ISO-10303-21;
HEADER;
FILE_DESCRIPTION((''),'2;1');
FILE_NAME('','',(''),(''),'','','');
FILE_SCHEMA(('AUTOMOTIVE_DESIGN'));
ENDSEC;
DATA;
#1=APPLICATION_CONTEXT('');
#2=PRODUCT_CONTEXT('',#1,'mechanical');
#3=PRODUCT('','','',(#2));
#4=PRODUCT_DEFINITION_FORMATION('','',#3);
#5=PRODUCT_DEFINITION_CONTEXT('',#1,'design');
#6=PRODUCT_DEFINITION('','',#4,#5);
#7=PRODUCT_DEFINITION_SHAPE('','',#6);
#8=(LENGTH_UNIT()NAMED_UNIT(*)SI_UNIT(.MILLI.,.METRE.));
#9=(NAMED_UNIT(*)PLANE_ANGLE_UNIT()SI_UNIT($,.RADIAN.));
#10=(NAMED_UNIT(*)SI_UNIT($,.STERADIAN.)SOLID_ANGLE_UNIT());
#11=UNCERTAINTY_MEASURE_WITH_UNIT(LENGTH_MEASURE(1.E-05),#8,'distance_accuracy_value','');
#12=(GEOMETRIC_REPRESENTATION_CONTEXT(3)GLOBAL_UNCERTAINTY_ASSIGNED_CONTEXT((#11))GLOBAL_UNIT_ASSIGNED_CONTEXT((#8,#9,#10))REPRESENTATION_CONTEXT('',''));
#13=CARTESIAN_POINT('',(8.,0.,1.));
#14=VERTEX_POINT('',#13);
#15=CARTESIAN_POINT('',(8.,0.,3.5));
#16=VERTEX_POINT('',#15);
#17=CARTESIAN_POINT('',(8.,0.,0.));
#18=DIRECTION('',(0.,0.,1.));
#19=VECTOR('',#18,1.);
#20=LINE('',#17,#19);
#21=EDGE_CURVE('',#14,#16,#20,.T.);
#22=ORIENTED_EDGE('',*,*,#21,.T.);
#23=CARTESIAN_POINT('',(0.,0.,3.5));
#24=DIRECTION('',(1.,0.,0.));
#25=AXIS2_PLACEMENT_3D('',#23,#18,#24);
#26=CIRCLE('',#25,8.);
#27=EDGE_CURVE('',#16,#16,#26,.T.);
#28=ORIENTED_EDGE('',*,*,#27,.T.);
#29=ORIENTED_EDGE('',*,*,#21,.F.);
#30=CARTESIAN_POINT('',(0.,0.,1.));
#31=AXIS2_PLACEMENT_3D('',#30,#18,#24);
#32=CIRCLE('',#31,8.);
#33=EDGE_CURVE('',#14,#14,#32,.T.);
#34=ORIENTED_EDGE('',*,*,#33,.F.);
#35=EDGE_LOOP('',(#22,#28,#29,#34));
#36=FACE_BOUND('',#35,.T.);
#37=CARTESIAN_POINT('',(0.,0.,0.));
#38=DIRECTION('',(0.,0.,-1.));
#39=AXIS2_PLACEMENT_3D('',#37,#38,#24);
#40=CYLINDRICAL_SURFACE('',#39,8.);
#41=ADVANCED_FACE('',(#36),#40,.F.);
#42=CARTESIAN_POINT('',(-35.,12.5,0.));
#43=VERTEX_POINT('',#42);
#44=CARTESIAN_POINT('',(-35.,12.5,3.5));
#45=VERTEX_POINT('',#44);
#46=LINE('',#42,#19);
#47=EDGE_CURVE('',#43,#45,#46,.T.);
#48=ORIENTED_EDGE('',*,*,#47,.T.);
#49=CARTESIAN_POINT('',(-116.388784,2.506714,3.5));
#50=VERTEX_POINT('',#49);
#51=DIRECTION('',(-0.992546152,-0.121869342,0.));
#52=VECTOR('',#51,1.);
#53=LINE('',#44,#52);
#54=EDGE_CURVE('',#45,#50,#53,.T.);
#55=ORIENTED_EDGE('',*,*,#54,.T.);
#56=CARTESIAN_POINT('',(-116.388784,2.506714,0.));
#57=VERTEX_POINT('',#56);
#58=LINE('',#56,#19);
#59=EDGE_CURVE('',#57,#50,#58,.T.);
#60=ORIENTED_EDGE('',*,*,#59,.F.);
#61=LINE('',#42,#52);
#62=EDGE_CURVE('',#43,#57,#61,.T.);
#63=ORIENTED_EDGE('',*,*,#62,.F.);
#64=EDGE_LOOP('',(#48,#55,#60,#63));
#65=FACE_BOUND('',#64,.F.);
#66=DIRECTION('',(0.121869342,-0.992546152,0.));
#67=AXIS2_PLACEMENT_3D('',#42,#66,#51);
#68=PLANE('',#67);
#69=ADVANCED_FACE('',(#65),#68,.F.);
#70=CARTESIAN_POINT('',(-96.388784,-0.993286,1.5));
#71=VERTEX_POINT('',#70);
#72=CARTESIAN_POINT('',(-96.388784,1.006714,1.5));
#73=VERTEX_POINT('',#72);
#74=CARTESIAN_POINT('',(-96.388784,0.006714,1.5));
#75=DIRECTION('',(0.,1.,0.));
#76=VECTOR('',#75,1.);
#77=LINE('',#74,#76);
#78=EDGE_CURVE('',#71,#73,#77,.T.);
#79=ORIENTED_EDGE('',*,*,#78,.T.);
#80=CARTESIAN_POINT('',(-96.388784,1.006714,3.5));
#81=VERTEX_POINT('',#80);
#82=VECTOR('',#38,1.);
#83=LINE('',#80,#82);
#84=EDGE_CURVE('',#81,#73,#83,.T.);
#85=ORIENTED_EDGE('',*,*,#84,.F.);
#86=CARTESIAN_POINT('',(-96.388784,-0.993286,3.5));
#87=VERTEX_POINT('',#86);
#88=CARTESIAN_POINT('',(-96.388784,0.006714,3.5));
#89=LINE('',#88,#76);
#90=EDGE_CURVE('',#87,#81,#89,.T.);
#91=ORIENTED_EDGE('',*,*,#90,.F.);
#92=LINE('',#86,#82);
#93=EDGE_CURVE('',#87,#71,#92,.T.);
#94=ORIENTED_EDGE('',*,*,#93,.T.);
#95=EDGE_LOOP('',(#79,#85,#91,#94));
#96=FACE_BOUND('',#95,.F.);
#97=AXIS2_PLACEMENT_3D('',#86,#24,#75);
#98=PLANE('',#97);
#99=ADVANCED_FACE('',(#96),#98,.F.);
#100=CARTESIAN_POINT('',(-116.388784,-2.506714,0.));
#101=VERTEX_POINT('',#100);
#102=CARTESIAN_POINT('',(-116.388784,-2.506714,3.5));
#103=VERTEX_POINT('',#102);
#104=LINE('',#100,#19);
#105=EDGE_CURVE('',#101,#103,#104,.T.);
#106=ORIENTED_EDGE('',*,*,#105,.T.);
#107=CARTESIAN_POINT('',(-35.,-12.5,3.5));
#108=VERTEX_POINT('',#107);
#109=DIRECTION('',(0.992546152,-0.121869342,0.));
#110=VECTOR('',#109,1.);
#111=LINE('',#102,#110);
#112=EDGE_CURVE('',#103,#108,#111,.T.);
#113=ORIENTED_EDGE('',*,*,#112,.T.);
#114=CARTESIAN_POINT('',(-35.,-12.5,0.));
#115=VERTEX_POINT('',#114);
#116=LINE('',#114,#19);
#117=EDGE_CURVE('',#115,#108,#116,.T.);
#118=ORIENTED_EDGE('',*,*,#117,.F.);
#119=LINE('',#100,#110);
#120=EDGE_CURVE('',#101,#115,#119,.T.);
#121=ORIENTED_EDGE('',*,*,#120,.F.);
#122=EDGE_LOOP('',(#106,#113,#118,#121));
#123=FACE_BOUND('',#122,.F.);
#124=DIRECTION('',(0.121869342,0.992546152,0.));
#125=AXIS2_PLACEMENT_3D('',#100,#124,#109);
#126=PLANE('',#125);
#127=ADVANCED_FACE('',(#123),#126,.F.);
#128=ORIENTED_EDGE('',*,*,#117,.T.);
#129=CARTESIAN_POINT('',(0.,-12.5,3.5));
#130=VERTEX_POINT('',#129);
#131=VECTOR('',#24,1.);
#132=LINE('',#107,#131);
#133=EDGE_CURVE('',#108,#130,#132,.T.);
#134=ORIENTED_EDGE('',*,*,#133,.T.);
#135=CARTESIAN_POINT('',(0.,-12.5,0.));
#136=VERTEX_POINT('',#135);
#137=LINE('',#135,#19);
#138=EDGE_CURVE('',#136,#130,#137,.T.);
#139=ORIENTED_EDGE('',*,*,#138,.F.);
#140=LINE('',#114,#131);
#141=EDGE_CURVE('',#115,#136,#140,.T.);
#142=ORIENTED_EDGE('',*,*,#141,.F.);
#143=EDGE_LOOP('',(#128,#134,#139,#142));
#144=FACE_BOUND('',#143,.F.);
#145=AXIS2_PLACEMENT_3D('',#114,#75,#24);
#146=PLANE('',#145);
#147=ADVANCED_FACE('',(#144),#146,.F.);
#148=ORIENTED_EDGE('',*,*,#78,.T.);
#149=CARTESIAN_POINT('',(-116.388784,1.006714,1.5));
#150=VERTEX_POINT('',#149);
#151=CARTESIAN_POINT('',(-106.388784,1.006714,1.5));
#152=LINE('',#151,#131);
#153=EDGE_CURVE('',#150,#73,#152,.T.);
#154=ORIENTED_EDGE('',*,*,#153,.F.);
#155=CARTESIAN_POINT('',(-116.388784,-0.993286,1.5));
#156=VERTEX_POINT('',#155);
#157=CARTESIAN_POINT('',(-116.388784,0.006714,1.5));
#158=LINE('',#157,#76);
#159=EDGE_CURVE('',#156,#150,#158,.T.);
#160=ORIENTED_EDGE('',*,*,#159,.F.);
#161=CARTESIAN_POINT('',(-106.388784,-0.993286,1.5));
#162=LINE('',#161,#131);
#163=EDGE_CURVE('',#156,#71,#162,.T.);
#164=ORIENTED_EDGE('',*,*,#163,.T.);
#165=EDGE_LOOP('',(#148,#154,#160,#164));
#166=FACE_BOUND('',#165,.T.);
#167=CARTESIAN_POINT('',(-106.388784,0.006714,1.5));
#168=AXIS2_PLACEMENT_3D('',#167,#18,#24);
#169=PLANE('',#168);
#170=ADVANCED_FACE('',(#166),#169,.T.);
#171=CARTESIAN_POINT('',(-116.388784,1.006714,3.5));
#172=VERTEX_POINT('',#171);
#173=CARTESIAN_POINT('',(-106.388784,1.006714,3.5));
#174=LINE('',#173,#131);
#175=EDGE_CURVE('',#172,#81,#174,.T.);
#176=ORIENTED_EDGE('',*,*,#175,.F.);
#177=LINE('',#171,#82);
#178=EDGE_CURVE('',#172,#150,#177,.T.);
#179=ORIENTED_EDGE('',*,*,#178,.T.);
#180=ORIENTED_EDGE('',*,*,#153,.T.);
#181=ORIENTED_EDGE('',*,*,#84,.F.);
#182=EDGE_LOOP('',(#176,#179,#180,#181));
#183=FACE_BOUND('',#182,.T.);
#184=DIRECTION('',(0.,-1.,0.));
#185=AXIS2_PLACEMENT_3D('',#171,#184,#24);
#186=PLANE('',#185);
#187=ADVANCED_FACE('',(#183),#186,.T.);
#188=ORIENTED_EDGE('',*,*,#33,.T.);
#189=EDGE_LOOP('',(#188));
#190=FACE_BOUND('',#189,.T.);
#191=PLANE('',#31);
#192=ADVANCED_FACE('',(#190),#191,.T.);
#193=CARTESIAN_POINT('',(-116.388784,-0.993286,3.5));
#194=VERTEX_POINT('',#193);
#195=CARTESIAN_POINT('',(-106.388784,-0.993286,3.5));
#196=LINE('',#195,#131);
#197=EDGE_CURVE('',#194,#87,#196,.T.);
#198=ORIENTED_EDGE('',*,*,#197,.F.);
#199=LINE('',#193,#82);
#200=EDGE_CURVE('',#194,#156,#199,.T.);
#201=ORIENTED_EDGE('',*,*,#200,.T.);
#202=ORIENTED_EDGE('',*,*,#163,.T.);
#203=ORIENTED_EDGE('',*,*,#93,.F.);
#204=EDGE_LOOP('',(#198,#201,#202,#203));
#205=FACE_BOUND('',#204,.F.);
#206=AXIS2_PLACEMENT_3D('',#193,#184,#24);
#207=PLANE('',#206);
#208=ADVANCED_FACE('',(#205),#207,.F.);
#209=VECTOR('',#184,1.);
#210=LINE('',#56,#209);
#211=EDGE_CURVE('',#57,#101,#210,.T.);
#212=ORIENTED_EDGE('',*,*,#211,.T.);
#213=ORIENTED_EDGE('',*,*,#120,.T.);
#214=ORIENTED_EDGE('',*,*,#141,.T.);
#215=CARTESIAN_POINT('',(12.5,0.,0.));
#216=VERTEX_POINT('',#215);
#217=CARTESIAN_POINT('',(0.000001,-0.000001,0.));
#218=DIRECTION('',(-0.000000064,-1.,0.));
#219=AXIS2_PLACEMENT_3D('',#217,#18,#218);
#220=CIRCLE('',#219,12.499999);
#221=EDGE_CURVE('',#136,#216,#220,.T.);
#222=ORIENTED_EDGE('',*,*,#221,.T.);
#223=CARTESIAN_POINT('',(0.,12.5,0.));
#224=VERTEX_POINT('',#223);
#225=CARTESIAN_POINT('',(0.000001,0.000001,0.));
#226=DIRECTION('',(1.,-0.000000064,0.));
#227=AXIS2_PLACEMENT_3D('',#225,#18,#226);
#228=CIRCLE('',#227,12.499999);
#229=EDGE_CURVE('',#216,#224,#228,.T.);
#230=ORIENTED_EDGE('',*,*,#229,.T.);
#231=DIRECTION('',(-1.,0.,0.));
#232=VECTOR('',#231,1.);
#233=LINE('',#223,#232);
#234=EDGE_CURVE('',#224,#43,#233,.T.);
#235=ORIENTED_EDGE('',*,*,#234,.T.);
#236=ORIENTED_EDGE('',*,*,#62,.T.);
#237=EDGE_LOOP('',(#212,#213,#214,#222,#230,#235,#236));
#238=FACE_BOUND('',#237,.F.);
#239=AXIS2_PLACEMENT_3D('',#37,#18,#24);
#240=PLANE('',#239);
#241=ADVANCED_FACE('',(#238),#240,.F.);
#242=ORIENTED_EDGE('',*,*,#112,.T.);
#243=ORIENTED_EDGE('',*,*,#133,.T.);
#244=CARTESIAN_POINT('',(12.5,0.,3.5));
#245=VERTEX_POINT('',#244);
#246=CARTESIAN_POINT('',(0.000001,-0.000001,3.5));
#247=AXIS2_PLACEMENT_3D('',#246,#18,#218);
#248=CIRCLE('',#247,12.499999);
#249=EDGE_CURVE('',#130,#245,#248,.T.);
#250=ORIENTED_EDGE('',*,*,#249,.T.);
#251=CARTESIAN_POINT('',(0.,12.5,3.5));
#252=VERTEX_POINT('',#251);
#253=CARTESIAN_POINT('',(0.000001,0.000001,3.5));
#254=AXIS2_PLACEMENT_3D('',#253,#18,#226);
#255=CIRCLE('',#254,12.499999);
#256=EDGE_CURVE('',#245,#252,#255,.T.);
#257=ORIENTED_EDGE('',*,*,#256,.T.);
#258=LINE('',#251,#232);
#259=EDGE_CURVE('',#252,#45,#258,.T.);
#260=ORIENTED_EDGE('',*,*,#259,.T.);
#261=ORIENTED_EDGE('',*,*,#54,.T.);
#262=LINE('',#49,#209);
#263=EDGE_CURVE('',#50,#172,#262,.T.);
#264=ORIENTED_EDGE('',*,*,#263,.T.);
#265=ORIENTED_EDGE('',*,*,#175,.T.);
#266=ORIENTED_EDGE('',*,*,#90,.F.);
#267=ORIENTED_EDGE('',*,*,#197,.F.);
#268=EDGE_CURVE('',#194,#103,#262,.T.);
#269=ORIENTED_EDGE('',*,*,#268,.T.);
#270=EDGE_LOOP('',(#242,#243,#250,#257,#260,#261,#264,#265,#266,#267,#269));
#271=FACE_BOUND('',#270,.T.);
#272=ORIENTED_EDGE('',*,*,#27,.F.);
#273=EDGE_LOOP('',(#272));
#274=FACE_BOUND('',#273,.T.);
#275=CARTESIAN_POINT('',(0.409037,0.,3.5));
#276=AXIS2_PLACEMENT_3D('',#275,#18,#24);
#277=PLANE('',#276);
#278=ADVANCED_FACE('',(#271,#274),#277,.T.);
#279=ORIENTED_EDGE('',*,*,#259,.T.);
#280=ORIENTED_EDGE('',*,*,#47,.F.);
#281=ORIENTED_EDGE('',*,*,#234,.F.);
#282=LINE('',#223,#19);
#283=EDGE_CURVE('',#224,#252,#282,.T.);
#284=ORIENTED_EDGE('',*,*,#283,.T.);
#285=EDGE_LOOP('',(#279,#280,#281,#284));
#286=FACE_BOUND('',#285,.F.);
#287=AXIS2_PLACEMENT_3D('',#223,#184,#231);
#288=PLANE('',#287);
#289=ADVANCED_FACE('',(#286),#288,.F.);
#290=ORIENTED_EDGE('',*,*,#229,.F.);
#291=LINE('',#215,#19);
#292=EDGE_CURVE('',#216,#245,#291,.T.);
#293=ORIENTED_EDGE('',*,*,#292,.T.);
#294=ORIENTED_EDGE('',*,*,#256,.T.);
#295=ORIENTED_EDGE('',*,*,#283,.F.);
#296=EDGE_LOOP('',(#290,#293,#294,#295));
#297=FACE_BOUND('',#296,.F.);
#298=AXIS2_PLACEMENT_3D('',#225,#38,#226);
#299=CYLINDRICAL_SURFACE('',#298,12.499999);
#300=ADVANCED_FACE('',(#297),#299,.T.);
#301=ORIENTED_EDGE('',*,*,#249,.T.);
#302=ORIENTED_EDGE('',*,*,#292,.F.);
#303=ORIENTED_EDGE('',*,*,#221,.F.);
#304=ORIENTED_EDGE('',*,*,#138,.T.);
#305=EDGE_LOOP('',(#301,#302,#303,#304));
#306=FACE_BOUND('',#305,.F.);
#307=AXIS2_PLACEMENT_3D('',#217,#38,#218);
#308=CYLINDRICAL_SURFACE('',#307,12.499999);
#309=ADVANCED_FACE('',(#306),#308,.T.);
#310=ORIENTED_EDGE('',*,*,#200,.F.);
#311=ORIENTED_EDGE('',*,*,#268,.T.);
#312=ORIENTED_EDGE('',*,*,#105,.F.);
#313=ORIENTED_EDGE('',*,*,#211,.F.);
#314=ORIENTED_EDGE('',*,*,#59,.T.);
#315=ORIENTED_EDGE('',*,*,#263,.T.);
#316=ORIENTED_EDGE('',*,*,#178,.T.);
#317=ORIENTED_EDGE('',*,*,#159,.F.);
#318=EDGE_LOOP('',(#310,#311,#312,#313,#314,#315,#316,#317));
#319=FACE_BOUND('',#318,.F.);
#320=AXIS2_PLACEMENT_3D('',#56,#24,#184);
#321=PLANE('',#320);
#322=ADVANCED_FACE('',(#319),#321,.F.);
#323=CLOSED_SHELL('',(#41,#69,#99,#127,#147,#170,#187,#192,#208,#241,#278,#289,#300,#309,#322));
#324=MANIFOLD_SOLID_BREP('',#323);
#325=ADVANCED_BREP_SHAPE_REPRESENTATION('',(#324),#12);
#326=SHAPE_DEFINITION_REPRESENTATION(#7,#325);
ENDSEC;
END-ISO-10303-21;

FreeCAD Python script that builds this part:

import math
import FreeCAD as App
import Part
import Sketcher
Q = App.Units.Quantity

doc = App.newDocument("Part")
params = doc.addObject("Spreadsheet::Sheet", "Params")
for row, (alias, value) in enumerate([
    ("sketch1_diameter", "16 mm"),
    ("sketch1_radius", "12.499999 mm"),
    ("sketch1_width", "35 mm"),
    ("sketch1_length", "82 mm"),
    ("pad1_length", "3.5 mm"),
    ("sketch2_diameter", "16 mm"),
    ("pad2_length", "1 mm"),
    ("sketch3_width", "20 mm"),
    ("sketch3_height", "2 mm"),
    ("pocket1_length", "2 mm"),
], start=1):
    params.set(f"A{row}", alias)
    params.set(f"B{row}", "=" + value)
    params.setAlias(f"B{row}", alias)

body = doc.addObject("PartDesign::Body", "Body")

# Sketch on XY plane
sketch1 = body.newObject("Sketcher::SketchObject", "Sketch")
sketch1.AttachmentSupport = (doc.getObject("XY_Plane"), [""])
sketch1.MapMode = "FlatFace"
sketch1.addGeometry([
    Part.ArcOfCircle(Part.Circle(App.Vector(0.000001, -0.000001, 0), App.Vector(0, 0, 1), 12.499999), math.radians(-90.000004), math.radians(0.000004)),  # 0
    Part.ArcOfCircle(Part.Circle(App.Vector(0.000001, 0.000001, 0), App.Vector(0, 0, 1), 12.499999), math.radians(-0.000004), math.radians(90.000004)),  # 1
    Part.LineSegment(App.Vector(0, 12.5, 0), App.Vector(-35, 12.5, 0)),  # 2
    Part.LineSegment(App.Vector(-35, 12.5, 0), App.Vector(-116.388784, 2.506714, 0)),  # 3
    Part.LineSegment(App.Vector(-116.388784, 2.506714, 0), App.Vector(-116.388784, -2.506714, 0)),  # 4
    Part.LineSegment(App.Vector(-116.388784, -2.506714, 0), App.Vector(-35, -12.5, 0)),  # 5
    Part.LineSegment(App.Vector(-35, -12.5, 0), App.Vector(0, -12.5, 0)),  # 6
    Part.Circle(App.Vector(0, 0, 0), App.Vector(0, 0, 1), 8),  # 7
], False)
sketch1.addConstraint([
    Sketcher.Constraint("Tangent", 0, 2, 1, 1),
    Sketcher.Constraint("Tangent", 1, 2, 2, 1),
    Sketcher.Constraint("Coincident", 2, 2, 3, 1),
    Sketcher.Constraint("Coincident", 3, 2, 4, 1),
    Sketcher.Constraint("Coincident", 4, 2, 5, 1),
    Sketcher.Constraint("Coincident", 5, 2, 6, 1),
    Sketcher.Constraint("Tangent", 6, 2, 0, 1),
    Sketcher.Constraint("Horizontal", 2),
    Sketcher.Constraint("Vertical", 4),
    Sketcher.Constraint("Horizontal", 6),
    Sketcher.Constraint("Coincident", 0, 3, -1, 1),
    Sketcher.Constraint("Coincident", 7, 3, -1, 1),
    Sketcher.Constraint("Equal", 0, 1),
    Sketcher.Constraint("PointOnObject", 0, 2, -1),
    Sketcher.Constraint("Vertical", 2, 2, 5, 2),
    Sketcher.Constraint("Equal", 3, 5),
    Sketcher.Constraint("Diameter", 7, 16.0),
    Sketcher.Constraint("Radius", 0, 12.499999),
    Sketcher.Constraint("DistanceX", 2, 2, 2, 1, 35.0),
    Sketcher.Constraint("Angle", 3, Q("-173 deg")),
    Sketcher.Constraint("Distance", 3, 82.0),
])
sketch1.setExpression("Constraints[16]", "Params.sketch1_diameter")
sketch1.setExpression("Constraints[17]", "Params.sketch1_radius")
sketch1.setExpression("Constraints[18]", "Params.sketch1_width")
sketch1.setExpression("Constraints[20]", "Params.sketch1_length")
pad1 = body.newObject("PartDesign::Pad", "Pad")
pad1.Profile = sketch1
pad1.setExpression("Length", "Params.pad1_length")

# Sketch on XY plane
sketch2 = body.newObject("Sketcher::SketchObject", "Sketch001")
sketch2.AttachmentSupport = (doc.getObject("XY_Plane"), [""])
sketch2.MapMode = "FlatFace"
sketch2.addGeometry(Part.Circle(App.Vector(0, 0, 0), App.Vector(0, 0, 1), 8), False)
sketch2.addConstraint([
    Sketcher.Constraint("Coincident", 0, 3, -1, 1),
    Sketcher.Constraint("Diameter", 0, 16.0),
])
sketch2.setExpression("Constraints[1]", "Params.sketch2_diameter")
pad2 = body.newObject("PartDesign::Pad", "Pad001")
pad2.Profile = sketch2
pad2.setExpression("Length", "Params.pad2_length")

# Sketch on XY plane
sketch3 = body.newObject("Sketcher::SketchObject", "Sketch002")
sketch3.AttachmentSupport = (doc.getObject("XY_Plane"), [""])
sketch3.MapMode = "FlatFace"
sketch3.AttachmentOffset = App.Placement(App.Vector(0, 0, 3.5), App.Rotation())
sketch3.addGeometry([
    Part.LineSegment(App.Vector(-116.388784, 1.006714, 0), App.Vector(-116.388784, -0.993286, 0)),
    Part.LineSegment(App.Vector(-116.388784, -0.993286, 0), App.Vector(-96.388784, -0.993286, 0)),
    Part.LineSegment(App.Vector(-96.388784, -0.993286, 0), App.Vector(-96.388784, 1.006714, 0)),
    Part.LineSegment(App.Vector(-96.388784, 1.006714, 0), App.Vector(-116.388784, 1.006714, 0)),
], False)
sketch3.addConstraint([
    Sketcher.Constraint("Coincident", 0, 2, 1, 1),
    Sketcher.Constraint("Coincident", 1, 2, 2, 1),
    Sketcher.Constraint("Coincident", 2, 2, 3, 1),
    Sketcher.Constraint("Coincident", 3, 2, 0, 1),
    Sketcher.Constraint("Vertical", 0),
    Sketcher.Constraint("Horizontal", 1),
    Sketcher.Constraint("Vertical", 2),
    Sketcher.Constraint("Horizontal", 3),
    Sketcher.Constraint("DistanceX", 1, 1, 1, 2, 20.0),
    Sketcher.Constraint("DistanceY", 0, 2, 0, 1, 2.0),
    Sketcher.Constraint("DistanceX", 0, 2, -1, 1, 116.388784),
    Sketcher.Constraint("DistanceY", 0, 2, -1, 1, 0.993286),
])
sketch3.setExpression("Constraints[8]", "Params.sketch3_width")
sketch3.setExpression("Constraints[9]", "Params.sketch3_height")
pocket1 = body.newObject("PartDesign::Pocket", "Pocket")
pocket1.Profile = sketch3
pocket1.setExpression("Length", "Params.pocket1_length")

doc.recompute()
